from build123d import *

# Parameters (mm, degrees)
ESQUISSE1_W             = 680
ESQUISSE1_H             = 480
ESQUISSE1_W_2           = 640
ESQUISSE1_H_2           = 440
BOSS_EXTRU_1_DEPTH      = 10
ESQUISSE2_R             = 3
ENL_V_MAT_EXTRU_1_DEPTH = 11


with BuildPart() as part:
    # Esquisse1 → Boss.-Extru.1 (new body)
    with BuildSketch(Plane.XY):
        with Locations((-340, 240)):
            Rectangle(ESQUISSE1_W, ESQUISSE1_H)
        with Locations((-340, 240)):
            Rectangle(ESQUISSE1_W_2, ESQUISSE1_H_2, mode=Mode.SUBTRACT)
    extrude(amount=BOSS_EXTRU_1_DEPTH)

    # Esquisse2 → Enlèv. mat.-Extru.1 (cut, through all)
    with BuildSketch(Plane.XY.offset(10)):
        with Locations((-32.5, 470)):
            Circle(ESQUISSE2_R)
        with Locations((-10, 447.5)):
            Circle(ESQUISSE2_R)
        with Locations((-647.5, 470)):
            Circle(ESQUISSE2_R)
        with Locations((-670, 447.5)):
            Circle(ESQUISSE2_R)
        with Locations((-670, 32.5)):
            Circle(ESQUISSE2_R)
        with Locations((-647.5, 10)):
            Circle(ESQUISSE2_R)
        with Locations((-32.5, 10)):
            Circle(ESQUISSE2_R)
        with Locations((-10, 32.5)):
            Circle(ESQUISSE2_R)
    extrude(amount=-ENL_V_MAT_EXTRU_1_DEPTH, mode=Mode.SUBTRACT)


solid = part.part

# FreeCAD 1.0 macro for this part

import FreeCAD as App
import Part
import Sketcher
from FreeCAD import Vector
Q = App.Units.Quantity

doc = App.newDocument("Part")
params = doc.addObject("Spreadsheet::Sheet", "Params")
for row, (alias, value) in enumerate([
    ("sketch1_width", "680 mm"),
    ("sketch1_width2", "640 mm"),
    ("sketch1_height", "480 mm"),
    ("sketch1_height2", "440 mm"),
    ("pad1_length", "10 mm"),
    ("sketch2_diameter", "6 mm"),
], start=1):
    params.set(f"A{row}", alias)
    params.set(f"B{row}", "=" + value)
    params.setAlias(f"B{row}", alias)

body = doc.addObject("PartDesign::Body", "Body")

# Sketch on XY plane
sketch1 = doc.addObject("Sketcher::SketchObject", "Sketch")
body.addObject(sketch1)
sketch1.AttachmentSupport = (doc.XY_Plane, [""])
sketch1.MapMode = "FlatFace"
sketch1.addGeometry([
    Part.LineSegment(Vector(-680, 480, 0), Vector(-680, 0, 0)),  # 0
    Part.LineSegment(Vector(-680, 0, 0), Vector(0, 0, 0)),  # 1
    Part.LineSegment(Vector(0, 0, 0), Vector(0, 480, 0)),  # 2
    Part.LineSegment(Vector(0, 480, 0), Vector(-680, 480, 0)),  # 3
    Part.LineSegment(Vector(-20, 20, 0), Vector(-660, 20, 0)),  # 4
    Part.LineSegment(Vector(-660, 20, 0), Vector(-660, 460, 0)),  # 5
    Part.LineSegment(Vector(-660, 460, 0), Vector(-20, 460, 0)),  # 6
    Part.LineSegment(Vector(-20, 460, 0), Vector(-20, 20, 0)),  # 7
], False)
sketch1.addConstraint([
    Sketcher.Constraint("Coincident", 0, 2, 1, 1),
    Sketcher.Constraint("Coincident", 1, 2, 2, 1),
    Sketcher.Constraint("Coincident", 2, 2, 3, 1),
    Sketcher.Constraint("Coincident", 3, 2, 0, 1),
    Sketcher.Constraint("Coincident", 4, 2, 5, 1),
    Sketcher.Constraint("Coincident", 5, 2, 6, 1),
    Sketcher.Constraint("Coincident", 6, 2, 7, 1),
    Sketcher.Constraint("Coincident", 7, 2, 4, 1),
    Sketcher.Constraint("Vertical", 0),
    Sketcher.Constraint("Horizontal", 1),
    Sketcher.Constraint("Vertical", 2),
    Sketcher.Constraint("Horizontal", 3),
    Sketcher.Constraint("Horizontal", 4),
    Sketcher.Constraint("Vertical", 5),
    Sketcher.Constraint("Horizontal", 6),
    Sketcher.Constraint("Vertical", 7),
    Sketcher.Constraint("Coincident", 1, 2, -1, 1),
    Sketcher.Constraint("DistanceX", 1, 1, 1, 2, Q("680 mm")),
    Sketcher.Constraint("DistanceX", 4, 2, 4, 1, Q("640 mm")),
    Sketcher.Constraint("DistanceY", 0, 2, 0, 1, Q("480 mm")),
    Sketcher.Constraint("DistanceY", 5, 1, 5, 2, Q("440 mm")),
    Sketcher.Constraint("DistanceX", 4, 2, -1, 1, Q("660 mm")),
    Sketcher.Constraint("DistanceY", -1, 1, 4, 2, Q("20 mm")),
])
sketch1.setExpression("Constraints[17]", "Params.sketch1_width")
sketch1.setExpression("Constraints[18]", "Params.sketch1_width2")
sketch1.setExpression("Constraints[19]", "Params.sketch1_height")
sketch1.setExpression("Constraints[20]", "Params.sketch1_height2")
pad1 = doc.addObject("PartDesign::Pad", "Pad")
body.addObject(pad1)
pad1.Profile = sketch1
pad1.setExpression("Length", "Params.pad1_length")

# Sketch on XY plane
sketch2 = doc.addObject("Sketcher::SketchObject", "Sketch001")
body.addObject(sketch2)
sketch2.AttachmentSupport = (doc.XY_Plane, [""])
sketch2.MapMode = "FlatFace"
sketch2.AttachmentOffset = App.Placement(Vector(0, 0, 10), App.Rotation())
sketch2.addGeometry([
    Part.Circle(Vector(-32.5, 470, 0), Vector(0, 0, 1), 3),  # 0
    Part.Circle(Vector(-10, 447.5, 0), Vector(0, 0, 1), 3),  # 1
    Part.Circle(Vector(-647.5, 470, 0), Vector(0, 0, 1), 3),  # 2
    Part.Circle(Vector(-670, 447.5, 0), Vector(0, 0, 1), 3),  # 3
    Part.Circle(Vector(-670, 32.5, 0), Vector(0, 0, 1), 3),  # 4
    Part.Circle(Vector(-647.5, 10, 0), Vector(0, 0, 1), 3),  # 5
    Part.Circle(Vector(-32.5, 10, 0), Vector(0, 0, 1), 3),  # 6
    Part.Circle(Vector(-10, 32.5, 0), Vector(0, 0, 1), 3),  # 7
], False)
sketch2.addConstraint([
    Sketcher.Constraint("Equal", 0, 1),
    Sketcher.Constraint("Equal", 1, 2),
    Sketcher.Constraint("Equal", 2, 3),
    Sketcher.Constraint("Equal", 3, 4),
    Sketcher.Constraint("Equal", 4, 5),
    Sketcher.Constraint("Equal", 5, 6),
    Sketcher.Constraint("Equal", 6, 7),
    Sketcher.Constraint("Horizontal", 0, 3, 2, 3),
    Sketcher.Constraint("Horizontal", 1, 3, 3, 3),
    Sketcher.Constraint("Horizontal", 5, 3, 6, 3),
    Sketcher.Constraint("Horizontal", 4, 3, 7, 3),
    Sketcher.Constraint("Vertical", 3, 3, 4, 3),
    Sketcher.Constraint("Vertical", 2, 3, 5, 3),
    Sketcher.Constraint("Vertical", 0, 3, 6, 3),
    Sketcher.Constraint("Vertical", 1, 3, 7, 3),
    Sketcher.Constraint("Diameter", 0, Q("6 mm")),
    Sketcher.Constraint("DistanceY", -1, 1, 0, 3, Q("470 mm")),
    Sketcher.Constraint("DistanceX", 1, 3, -1, 1, Q("10 mm")),
    Sketcher.Constraint("DistanceX", 3, 3, -1, 1, Q("670 mm")),
    Sketcher.Constraint("DistanceY", -1, 1, 5, 3, Q("10 mm")),
    Sketcher.Constraint("DistanceX", 2, 3, 0, 3, Q("615 mm")),
    Sketcher.Constraint("DistanceY", 4, 3, 3, 3, Q("415 mm")),
    Sketcher.Constraint("DistanceX", 0, 3, -1, 1, Q("32.5 mm")),
    Sketcher.Constraint("DistanceY", -1, 1, 1, 3, Q("447.5 mm")),
])
sketch2.setExpression("Constraints[15]", "Params.sketch2_diameter")
pocket1 = doc.addObject("PartDesign::Pocket", "Pocket")
body.addObject(pocket1)
pocket1.Profile = sketch2
pocket1.Type = "ThroughAll"

doc.recompute()
